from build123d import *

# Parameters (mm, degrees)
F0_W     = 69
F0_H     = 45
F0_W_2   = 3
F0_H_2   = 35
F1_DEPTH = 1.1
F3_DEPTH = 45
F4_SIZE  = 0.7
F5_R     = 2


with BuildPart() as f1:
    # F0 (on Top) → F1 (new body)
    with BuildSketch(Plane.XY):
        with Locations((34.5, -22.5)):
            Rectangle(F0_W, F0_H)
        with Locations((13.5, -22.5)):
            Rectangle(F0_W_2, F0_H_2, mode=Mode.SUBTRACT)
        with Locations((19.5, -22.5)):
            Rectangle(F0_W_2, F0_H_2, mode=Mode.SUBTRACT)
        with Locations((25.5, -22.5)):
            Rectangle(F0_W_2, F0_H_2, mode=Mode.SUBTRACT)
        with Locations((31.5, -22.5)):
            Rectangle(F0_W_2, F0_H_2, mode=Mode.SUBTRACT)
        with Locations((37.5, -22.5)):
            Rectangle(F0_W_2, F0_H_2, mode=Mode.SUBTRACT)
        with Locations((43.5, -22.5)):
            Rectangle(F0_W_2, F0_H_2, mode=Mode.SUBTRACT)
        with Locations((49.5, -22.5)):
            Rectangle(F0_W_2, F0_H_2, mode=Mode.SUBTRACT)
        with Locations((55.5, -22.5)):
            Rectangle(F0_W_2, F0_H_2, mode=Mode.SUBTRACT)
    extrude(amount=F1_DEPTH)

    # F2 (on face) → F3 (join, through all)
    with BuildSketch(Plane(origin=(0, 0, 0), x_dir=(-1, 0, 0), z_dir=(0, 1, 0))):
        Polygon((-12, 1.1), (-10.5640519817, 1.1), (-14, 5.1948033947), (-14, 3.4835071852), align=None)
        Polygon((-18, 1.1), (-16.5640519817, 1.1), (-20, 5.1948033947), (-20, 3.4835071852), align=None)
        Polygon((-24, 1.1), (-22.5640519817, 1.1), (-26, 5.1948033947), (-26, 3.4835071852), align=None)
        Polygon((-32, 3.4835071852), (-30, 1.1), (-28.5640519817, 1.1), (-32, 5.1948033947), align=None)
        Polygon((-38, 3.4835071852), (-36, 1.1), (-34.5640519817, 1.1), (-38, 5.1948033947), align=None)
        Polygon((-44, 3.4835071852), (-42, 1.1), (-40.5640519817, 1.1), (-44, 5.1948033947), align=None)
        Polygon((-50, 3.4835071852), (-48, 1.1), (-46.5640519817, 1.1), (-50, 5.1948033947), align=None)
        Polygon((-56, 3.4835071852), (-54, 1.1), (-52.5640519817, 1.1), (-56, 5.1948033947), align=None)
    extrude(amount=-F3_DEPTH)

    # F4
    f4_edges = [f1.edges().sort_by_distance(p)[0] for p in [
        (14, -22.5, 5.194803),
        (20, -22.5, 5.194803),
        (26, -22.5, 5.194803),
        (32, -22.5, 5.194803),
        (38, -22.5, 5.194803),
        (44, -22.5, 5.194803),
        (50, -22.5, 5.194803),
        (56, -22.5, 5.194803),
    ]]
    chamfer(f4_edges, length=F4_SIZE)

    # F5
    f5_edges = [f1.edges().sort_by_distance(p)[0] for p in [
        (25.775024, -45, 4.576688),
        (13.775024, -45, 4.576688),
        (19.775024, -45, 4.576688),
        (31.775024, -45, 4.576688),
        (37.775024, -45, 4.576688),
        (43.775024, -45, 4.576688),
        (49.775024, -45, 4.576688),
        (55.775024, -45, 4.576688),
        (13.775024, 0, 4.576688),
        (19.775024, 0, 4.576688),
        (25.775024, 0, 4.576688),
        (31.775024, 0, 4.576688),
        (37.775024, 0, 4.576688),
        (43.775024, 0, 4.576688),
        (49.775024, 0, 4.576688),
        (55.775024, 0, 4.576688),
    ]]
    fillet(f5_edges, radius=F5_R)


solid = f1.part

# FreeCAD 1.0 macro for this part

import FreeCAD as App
import Part
import Sketcher
from FreeCAD import Vector
Q = App.Units.Quantity


def edges_at(feature, points):
    """Names of the edges that pass closest to the given points."""
    edges = feature.Shape.Edges
    near = lambda p: min(range(len(edges)), key=lambda i: edges[i].distToShape(Part.Vertex(*p))[0])
    return sorted({f"Edge{near(p) + 1}" for p in points})


def add_polygon(sketch, points):
    """Adds a closed chain of lines whose ends are joined by coincident constraints."""
    first, n = sketch.GeometryCount, len(points)
    for a, b in zip(points, points[1:] + points[:1]):
        sketch.addGeometry(Part.LineSegment(App.Vector(*a, 0), App.Vector(*b, 0)), False)
    for i in range(n):
        sketch.addConstraint(Sketcher.Constraint("Coincident", first + i, 2, first + (i + 1) % n, 1))

doc = App.newDocument("Part")
body = doc.addObject("PartDesign::Body", "Body")

# Sketch on XY plane
sketch1 = body.newObject("Sketcher::SketchObject", "Sketch")
sketch1.AttachmentSupport = (doc.getObject("XY_Plane"), [""])
sketch1.MapMode = "FlatFace"
add_polygon(sketch1, [(0, 0), (0, -45), (69, -45), (69, 0)])  # lines 0-3
add_polygon(sketch1, [(15, -40), (12, -40), (12, -5), (15, -5)])  # lines 4-7
add_polygon(sketch1, [(21, -40), (18, -40), (18, -5), (21, -5)])  # lines 8-11
add_polygon(sketch1, [(27, -40), (24, -40), (24, -5), (27, -5)])  # lines 12-15
add_polygon(sketch1, [(33, -40), (30, -40), (30, -5), (33, -5)])  # lines 16-19
add_polygon(sketch1, [(39, -40), (36, -40), (36, -5), (39, -5)])  # lines 20-23
add_polygon(sketch1, [(45, -40), (42, -40), (42, -5), (45, -5)])  # lines 24-27
add_polygon(sketch1, [(51, -40), (48, -40), (48, -5), (51, -5)])  # lines 28-31
add_polygon(sketch1, [(57, -40), (54, -40), (54, -5), (57, -5)])  # lines 32-35
sketch1.addConstraint([
    Sketcher.Constraint("Vertical", 0),
    Sketcher.Constraint("Horizontal", 1),
    Sketcher.Constraint("Vertical", 2),
    Sketcher.Constraint("Horizontal", 3),
    Sketcher.Constraint("Horizontal", 4),
    Sketcher.Constraint("Vertical", 5),
    Sketcher.Constraint("Horizontal", 6),
    Sketcher.Constraint("Vertical", 7),
    Sketcher.Constraint("Horizontal", 8),
    Sketcher.Constraint("Vertical", 9),
    Sketcher.Constraint("Horizontal", 10),
    Sketcher.Constraint("Vertical", 11),
    Sketcher.Constraint("Horizontal", 12),
    Sketcher.Constraint("Vertical", 13),
    Sketcher.Constraint("Horizontal", 14),
    Sketcher.Constraint("Vertical", 15),
    Sketcher.Constraint("Horizontal", 16),
    Sketcher.Constraint("Vertical", 17),
    Sketcher.Constraint("Horizontal", 18),
    Sketcher.Constraint("Vertical", 19),
    Sketcher.Constraint("Horizontal", 20),
    Sketcher.Constraint("Vertical", 21),
    Sketcher.Constraint("Horizontal", 22),
    Sketcher.Constraint("Vertical", 23),
    Sketcher.Constraint("Horizontal", 24),
    Sketcher.Constraint("Vertical", 25),
    Sketcher.Constraint("Horizontal", 26),
    Sketcher.Constraint("Vertical", 27),
    Sketcher.Constraint("Horizontal", 28),
    Sketcher.Constraint("Vertical", 29),
    Sketcher.Constraint("Horizontal", 30),
    Sketcher.Constraint("Vertical", 31),
    Sketcher.Constraint("Horizontal", 32),
    Sketcher.Constraint("Vertical", 33),
    Sketcher.Constraint("Horizontal", 34),
    Sketcher.Constraint("Vertical", 35),
    Sketcher.Constraint("Coincident", 3, 2, -1, 1),
    Sketcher.Constraint("Horizontal", 7, 2, 8, 2),
    Sketcher.Constraint("Horizontal", 6, 2, 9, 2),
    Sketcher.Constraint("Horizontal", 11, 2, 12, 2),
    Sketcher.Constraint("Horizontal", 10, 2, 13, 2),
    Sketcher.Constraint("Horizontal", 15, 2, 16, 2),
    Sketcher.Constraint("Horizontal", 14, 2, 17, 2),
    Sketcher.Constraint("Horizontal", 19, 2, 20, 2),
    Sketcher.Constraint("Horizontal", 18, 2, 21, 2),
    Sketcher.Constraint("Horizontal", 23, 2, 24, 2),
    Sketcher.Constraint("Horizontal", 22, 2, 25, 2),
    Sketcher.Constraint("Horizontal", 27, 2, 28, 2),
    Sketcher.Constraint("Horizontal", 26, 2, 29, 2),
    Sketcher.Constraint("Horizontal", 31, 2, 32, 2),
    Sketcher.Constraint("Horizontal", 30, 2, 33, 2),
    Sketcher.Constraint("Equal", 6, 8),
    Sketcher.Constraint("Equal", 10, 12),
    Sketcher.Constraint("Equal", 14, 16),
    Sketcher.Constraint("Equal", 18, 20),
    Sketcher.Constraint("Equal", 22, 24),
    Sketcher.Constraint("Equal", 26, 28),
    Sketcher.Constraint("Equal", 30, 32),
    Sketcher.Constraint("DistanceX", 1, 1, 1, 2, 69.0),
    Sketcher.Constraint("DistanceX", 4, 2, 4, 1, 3.0),
    Sketcher.Constraint("DistanceY", 0, 2, 0, 1, 45.0),
    Sketcher.Constraint("DistanceY", 5, 1, 5, 2, 35.0),
    Sketcher.Constraint("DistanceX", -1, 1, 4, 2, 12.0),
    Sketcher.Constraint("DistanceY", 4, 2, -1, 1, 40.0),
    Sketcher.Constraint("DistanceX", -1, 1, 8, 2, 18.0),
    Sketcher.Constraint("DistanceX", -1, 1, 12, 2, 24.0),
    Sketcher.Constraint("DistanceX", -1, 1, 16, 2, 30.0),
    Sketcher.Constraint("DistanceX", -1, 1, 20, 2, 36.0),
    Sketcher.Constraint("DistanceX", -1, 1, 24, 2, 42.0),
    Sketcher.Constraint("DistanceX", -1, 1, 28, 2, 48.0),
    Sketcher.Constraint("DistanceX", -1, 1, 32, 2, 54.0),
])
pad1 = body.newObject("PartDesign::Pad", "Pad")
pad1.Profile = sketch1
pad1.Length = 1.1

# Sketch on XZ plane
sketch2 = body.newObject("Sketcher::SketchObject", "Sketch001")
sketch2.AttachmentSupport = (doc.getObject("XZ_Plane"), [""])
sketch2.MapMode = "FlatFace"
add_polygon(sketch2, [(12, 1.1), (10.6, 1.1), (14, 5.2), (14, 3.5)])  # lines 0-3
add_polygon(sketch2, [(18, 1.1), (16.6, 1.1), (20, 5.2), (20, 3.5)])  # lines 4-7
add_polygon(sketch2, [(24, 1.1), (22.6, 1.1), (26, 5.2), (26, 3.5)])  # lines 8-11
add_polygon(sketch2, [(32, 3.5), (30, 1.1), (28.6, 1.1), (32, 5.2)])  # lines 12-15
add_polygon(sketch2, [(38, 3.5), (36, 1.1), (34.6, 1.1), (38, 5.2)])  # lines 16-19
add_polygon(sketch2, [(44, 3.5), (42, 1.1), (40.6, 1.1), (44, 5.2)])  # lines 20-23
add_polygon(sketch2, [(50, 3.5), (48, 1.1), (46.6, 1.1), (50, 5.2)])  # lines 24-27
add_polygon(sketch2, [(56, 3.5), (54, 1.1), (52.6, 1.1), (56, 5.2)])  # lines 28-31
sketch2.addConstraint([
    Sketcher.Constraint("Horizontal", 0),
    Sketcher.Constraint("Vertical", 2),
    Sketcher.Constraint("Horizontal", 4),
    Sketcher.Constraint("Vertical", 6),
    Sketcher.Constraint("Horizontal", 8),
    Sketcher.Constraint("Vertical", 10),
    Sketcher.Constraint("Horizontal", 13),
    Sketcher.Constraint("Vertical", 15),
    Sketcher.Constraint("Horizontal", 17),
    Sketcher.Constraint("Vertical", 19),
    Sketcher.Constraint("Horizontal", 21),
    Sketcher.Constraint("Vertical", 23),
    Sketcher.Constraint("Horizontal", 25),
    Sketcher.Constraint("Vertical", 27),
    Sketcher.Constraint("Horizontal", 29),
    Sketcher.Constraint("Vertical", 31),
    Sketcher.Constraint("Parallel", 1, 3),
    Sketcher.Constraint("Parallel", 3, 5),
    Sketcher.Constraint("Parallel", 5, 7),
    Sketcher.Constraint("Parallel", 7, 9),
    Sketcher.Constraint("Parallel", 9, 11),
    Sketcher.Constraint("Parallel", 11, 12),
    Sketcher.Constraint("Parallel", 12, 14),
    Sketcher.Constraint("Parallel", 14, 16),
    Sketcher.Constraint("Parallel", 16, 18),
    Sketcher.Constraint("Parallel", 18, 20),
    Sketcher.Constraint("Parallel", 20, 22),
    Sketcher.Constraint("Parallel", 22, 24),
    Sketcher.Constraint("Parallel", 24, 26),
    Sketcher.Constraint("Parallel", 26, 28),
    Sketcher.Constraint("Parallel", 28, 30),
    Sketcher.Constraint("Horizontal", 3, 2, 4, 2),
    Sketcher.Constraint("Horizontal", 1, 2, 5, 2),
    Sketcher.Constraint("Horizontal", 2, 2, 6, 2),
    Sketcher.Constraint("Horizontal", 7, 2, 8, 2),
    Sketcher.Constraint("Horizontal", 5, 2, 9, 2),
    Sketcher.Constraint("Horizontal", 6, 2, 10, 2),
    Sketcher.Constraint("Horizontal", 11, 2, 12, 2),
    Sketcher.Constraint("Horizontal", 9, 2, 14, 2),
    Sketcher.Constraint("Horizontal", 10, 2, 15, 2),
    Sketcher.Constraint("Horizontal", 13, 2, 16, 2),
    Sketcher.Constraint("Horizontal", 14, 2, 18, 2),
    Sketcher.Constraint("Horizontal", 15, 2, 19, 2),
    Sketcher.Constraint("Horizontal", 17, 2, 20, 2),
    Sketcher.Constraint("Horizontal", 18, 2, 22, 2),
    Sketcher.Constraint("Horizontal", 19, 2, 23, 2),
    Sketcher.Constraint("Horizontal", 21, 2, 24, 2),
    Sketcher.Constraint("Horizontal", 22, 2, 26, 2),
    Sketcher.Constraint("Horizontal", 23, 2, 27, 2),
    Sketcher.Constraint("Horizontal", 25, 2, 28, 2),
    Sketcher.Constraint("Horizontal", 26, 2, 30, 2),
    Sketcher.Constraint("Horizontal", 27, 2, 31, 2),
    Sketcher.Constraint("Angle", 1, Q("50 deg")),
    Sketcher.Constraint("DistanceX", -1, 1, 1, 2, 14.0),
    Sketcher.Constraint("DistanceX", -1, 1, 3, 2, 12.0),
    Sketcher.Constraint("DistanceX", -1, 1, 5, 2, 20.0),
    Sketcher.Constraint("DistanceX", -1, 1, 9, 2, 26.0),
    Sketcher.Constraint("DistanceX", -1, 1, 12, 2, 30.0),
    Sketcher.Constraint("DistanceX", -1, 1, 16, 2, 36.0),
    Sketcher.Constraint("DistanceX", -1, 1, 20, 2, 42.0),
    Sketcher.Constraint("DistanceX", -1, 1, 24, 2, 48.0),
    Sketcher.Constraint("DistanceX", -1, 1, 28, 2, 54.0),
    Sketcher.Constraint("DistanceY", -1, 1, 0, 2, 1.1),
    Sketcher.Constraint("DistanceX", 0, 2, 0, 1, 1.435948),
])
pad2 = body.newObject("PartDesign::Pad", "Pad001")
pad2.Profile = sketch2
pad2.Length = 45
doc.recompute()

chamfer = body.newObject("PartDesign::Chamfer", "Chamfer")
chamfer.Base = (pad2, edges_at(pad2, [
    (14, -22.5, 5.195),
    (20, -22.5, 5.195),
    (26, -22.5, 5.195),
    (32, -22.5, 5.195),
    (38, -22.5, 5.195),
    (44, -22.5, 5.195),
    (50, -22.5, 5.195),
    (56, -22.5, 5.195),
]))
chamfer.Size = 0.7
doc.recompute()

fillet = body.newObject("PartDesign::Fillet", "Fillet")
fillet.Base = (chamfer, edges_at(chamfer, [
    (25.775, -45, 4.577),
    (13.775, -45, 4.577),
    (19.775, -45, 4.577),
    (31.775, -45, 4.577),
    (37.775, -45, 4.577),
    (43.775, -45, 4.577),
    (49.775, -45, 4.577),
    (55.775, -45, 4.577),
    (13.775, 0, 4.577),
    (19.775, 0, 4.577),
    (25.775, 0, 4.577),
    (31.775, 0, 4.577),
    (37.775, 0, 4.577),
    (43.775, 0, 4.577),
    (49.775, 0, 4.577),
    (55.775, 0, 4.577),
]))
fillet.Radius = 2

doc.recompute()
